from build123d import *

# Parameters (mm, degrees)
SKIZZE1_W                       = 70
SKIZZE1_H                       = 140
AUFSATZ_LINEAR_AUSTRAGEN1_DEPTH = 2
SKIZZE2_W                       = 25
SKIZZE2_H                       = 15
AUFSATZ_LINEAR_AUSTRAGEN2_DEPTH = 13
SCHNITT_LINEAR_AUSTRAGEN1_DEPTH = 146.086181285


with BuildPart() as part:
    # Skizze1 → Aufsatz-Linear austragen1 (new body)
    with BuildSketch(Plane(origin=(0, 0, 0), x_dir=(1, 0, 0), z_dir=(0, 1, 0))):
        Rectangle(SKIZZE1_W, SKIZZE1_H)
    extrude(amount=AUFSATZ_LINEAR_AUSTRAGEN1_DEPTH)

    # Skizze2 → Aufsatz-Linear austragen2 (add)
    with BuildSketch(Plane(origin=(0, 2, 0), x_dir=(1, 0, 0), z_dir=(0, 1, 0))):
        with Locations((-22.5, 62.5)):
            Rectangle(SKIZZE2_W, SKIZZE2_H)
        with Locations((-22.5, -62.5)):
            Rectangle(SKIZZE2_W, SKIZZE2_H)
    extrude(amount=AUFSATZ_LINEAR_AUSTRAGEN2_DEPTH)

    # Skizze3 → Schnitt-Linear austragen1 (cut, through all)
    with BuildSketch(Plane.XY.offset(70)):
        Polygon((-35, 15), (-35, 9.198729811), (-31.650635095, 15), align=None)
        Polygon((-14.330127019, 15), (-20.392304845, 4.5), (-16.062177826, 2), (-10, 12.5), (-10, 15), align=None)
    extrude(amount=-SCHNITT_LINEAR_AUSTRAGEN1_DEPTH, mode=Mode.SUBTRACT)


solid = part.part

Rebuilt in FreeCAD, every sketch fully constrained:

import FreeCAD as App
import Part
import Sketcher

V = App.Vector
Q = App.Units.Quantity


def add_polygon(sketch, points):
    """Adds a closed chain of lines whose ends are joined by coincident constraints."""
    first, n = sketch.GeometryCount, len(points)
    for a, b in zip(points, points[1:] + points[:1]):
        sketch.addGeometry(Part.LineSegment(App.Vector(*a, 0), App.Vector(*b, 0)), False)
    for i in range(n):
        sketch.addConstraint(Sketcher.Constraint("Coincident", first + i, 2, first + (i + 1) % n, 1))

doc = App.newDocument("Part")
body = doc.addObject("PartDesign::Body", "Body")

# Sketch on XZ plane
sketch1 = body.newObject("Sketcher::SketchObject", "Sketch")
sketch1.AttachmentSupport = (doc.getObject("XZ_Plane"), [""])
sketch1.MapMode = "FlatFace"
add_polygon(sketch1, [(-35, -70), (-35, 70), (35, 70), (35, -70)])  # lines 0-3
sketch1.addConstraint(Sketcher.Constraint("Vertical", 0))
sketch1.addConstraint(Sketcher.Constraint("Horizontal", 1))
sketch1.addConstraint(Sketcher.Constraint("Vertical", 2))
sketch1.addConstraint(Sketcher.Constraint("Horizontal", 3))
sketch1.addConstraint(Sketcher.Constraint("Symmetric", 0, 2, 2, 2, -1, 1))
sketch1.addConstraint(Sketcher.Constraint("DistanceX", 1, 1, 1, 2, Q("70 mm")))
sketch1.addConstraint(Sketcher.Constraint("DistanceY", 0, 1, 0, 2, Q("140 mm")))
pad1 = body.newObject("PartDesign::Pad", "Pad")
pad1.Profile = sketch1
pad1.Length = 2
pad1.Reversed = True

# Sketch on XZ plane
sketch2 = body.newObject("Sketcher::SketchObject", "Sketch001")
sketch2.AttachmentSupport = (doc.getObject("XZ_Plane"), [""])
sketch2.MapMode = "FlatFace"
sketch2.AttachmentOffset = App.Placement(V(0, 0, -2), App.Rotation())
add_polygon(sketch2, [(-35, -70), (-35, -55), (-10, -55), (-10, -70)])  # lines 0-3
add_polygon(sketch2, [(-35, 55), (-35, 70), (-10, 70), (-10, 55)])  # lines 4-7
sketch2.addConstraint(Sketcher.Constraint("Vertical", 0))
sketch2.addConstraint(Sketcher.Constraint("Horizontal", 1))
sketch2.addConstraint(Sketcher.Constraint("Vertical", 2))
sketch2.addConstraint(Sketcher.Constraint("Horizontal", 3))
sketch2.addConstraint(Sketcher.Constraint("Vertical", 4))
sketch2.addConstraint(Sketcher.Constraint("Horizontal", 5))
sketch2.addConstraint(Sketcher.Constraint("Vertical", 6))
sketch2.addConstraint(Sketcher.Constraint("Horizontal", 7))
sketch2.addConstraint(Sketcher.Constraint("Symmetric", 3, 2, 4, 2, -1))
sketch2.addConstraint(Sketcher.Constraint("Symmetric", 1, 2, 6, 2, -1))
sketch2.addConstraint(Sketcher.Constraint("DistanceX", 1, 1, 1, 2, Q("25 mm")))
sketch2.addConstraint(Sketcher.Constraint("DistanceY", 0, 1, 0, 2, Q("15 mm")))
sketch2.addConstraint(Sketcher.Constraint("DistanceX", 0, 2, -1, 1, Q("35 mm")))
sketch2.addConstraint(Sketcher.Constraint("DistanceY", 0, 2, -1, 1, Q("55 mm")))
pad2 = body.newObject("PartDesign::Pad", "Pad001")
pad2.Profile = sketch2
pad2.Length = 13
pad2.Reversed = True

# Sketch on XY plane
sketch3 = body.newObject("Sketcher::SketchObject", "Sketch002")
sketch3.AttachmentSupport = (doc.getObject("XY_Plane"), [""])
sketch3.MapMode = "FlatFace"
sketch3.AttachmentOffset = App.Placement(V(0, 0, 70), App.Rotation())
add_polygon(sketch3, [(-35, 15), (-35, 9.2), (-31.7, 15)])  # lines 0-2
add_polygon(sketch3, [(-14.3, 15), (-20.4, 4.5), (-16.1, 2), (-10, 12.5), (-10, 15)])  # lines 3-7
sketch3.addConstraint(Sketcher.Constraint("Vertical", 0))
sketch3.addConstraint(Sketcher.Constraint("Horizontal", 2))
sketch3.addConstraint(Sketcher.Constraint("Vertical", 6))
sketch3.addConstraint(Sketcher.Constraint("Horizontal", 7))
sketch3.addConstraint(Sketcher.Constraint("Parallel", 1, 3))
sketch3.addConstraint(Sketcher.Constraint("Perpendicular", 3, 4))
sketch3.addConstraint(Sketcher.Constraint("Perpendicular", 4, 5))
sketch3.addConstraint(Sketcher.Constraint("Horizontal", 2, 2, 6, 2))
sketch3.addConstraint(Sketcher.Constraint("Equal", 3, 5))
sketch3.addConstraint(Sketcher.Constraint("Angle", 1, Q("60 deg")))
sketch3.addConstraint(Sketcher.Constraint("Distance", 4, Q("5 mm")))
sketch3.addConstraint(Sketcher.Constraint("DistanceX", 0, 2, -1, 1, Q("35 mm")))
sketch3.addConstraint(Sketcher.Constraint("DistanceY", -1, 1, 1, 2, Q("15 mm")))
sketch3.addConstraint(Sketcher.Constraint("DistanceY", -1, 1, 4, 2, Q("2 mm")))
sketch3.addConstraint(Sketcher.Constraint("DistanceX", 5, 2, -1, 1, Q("10 mm")))
sketch3.addConstraint(Sketcher.Constraint("DistanceY", 0, 2, 0, 1, Q("5.80127 mm")))
pocket1 = body.newObject("PartDesign::Pocket", "Pocket")
pocket1.Profile = sketch3
pocket1.Type = "ThroughAll"

doc.recompute()
